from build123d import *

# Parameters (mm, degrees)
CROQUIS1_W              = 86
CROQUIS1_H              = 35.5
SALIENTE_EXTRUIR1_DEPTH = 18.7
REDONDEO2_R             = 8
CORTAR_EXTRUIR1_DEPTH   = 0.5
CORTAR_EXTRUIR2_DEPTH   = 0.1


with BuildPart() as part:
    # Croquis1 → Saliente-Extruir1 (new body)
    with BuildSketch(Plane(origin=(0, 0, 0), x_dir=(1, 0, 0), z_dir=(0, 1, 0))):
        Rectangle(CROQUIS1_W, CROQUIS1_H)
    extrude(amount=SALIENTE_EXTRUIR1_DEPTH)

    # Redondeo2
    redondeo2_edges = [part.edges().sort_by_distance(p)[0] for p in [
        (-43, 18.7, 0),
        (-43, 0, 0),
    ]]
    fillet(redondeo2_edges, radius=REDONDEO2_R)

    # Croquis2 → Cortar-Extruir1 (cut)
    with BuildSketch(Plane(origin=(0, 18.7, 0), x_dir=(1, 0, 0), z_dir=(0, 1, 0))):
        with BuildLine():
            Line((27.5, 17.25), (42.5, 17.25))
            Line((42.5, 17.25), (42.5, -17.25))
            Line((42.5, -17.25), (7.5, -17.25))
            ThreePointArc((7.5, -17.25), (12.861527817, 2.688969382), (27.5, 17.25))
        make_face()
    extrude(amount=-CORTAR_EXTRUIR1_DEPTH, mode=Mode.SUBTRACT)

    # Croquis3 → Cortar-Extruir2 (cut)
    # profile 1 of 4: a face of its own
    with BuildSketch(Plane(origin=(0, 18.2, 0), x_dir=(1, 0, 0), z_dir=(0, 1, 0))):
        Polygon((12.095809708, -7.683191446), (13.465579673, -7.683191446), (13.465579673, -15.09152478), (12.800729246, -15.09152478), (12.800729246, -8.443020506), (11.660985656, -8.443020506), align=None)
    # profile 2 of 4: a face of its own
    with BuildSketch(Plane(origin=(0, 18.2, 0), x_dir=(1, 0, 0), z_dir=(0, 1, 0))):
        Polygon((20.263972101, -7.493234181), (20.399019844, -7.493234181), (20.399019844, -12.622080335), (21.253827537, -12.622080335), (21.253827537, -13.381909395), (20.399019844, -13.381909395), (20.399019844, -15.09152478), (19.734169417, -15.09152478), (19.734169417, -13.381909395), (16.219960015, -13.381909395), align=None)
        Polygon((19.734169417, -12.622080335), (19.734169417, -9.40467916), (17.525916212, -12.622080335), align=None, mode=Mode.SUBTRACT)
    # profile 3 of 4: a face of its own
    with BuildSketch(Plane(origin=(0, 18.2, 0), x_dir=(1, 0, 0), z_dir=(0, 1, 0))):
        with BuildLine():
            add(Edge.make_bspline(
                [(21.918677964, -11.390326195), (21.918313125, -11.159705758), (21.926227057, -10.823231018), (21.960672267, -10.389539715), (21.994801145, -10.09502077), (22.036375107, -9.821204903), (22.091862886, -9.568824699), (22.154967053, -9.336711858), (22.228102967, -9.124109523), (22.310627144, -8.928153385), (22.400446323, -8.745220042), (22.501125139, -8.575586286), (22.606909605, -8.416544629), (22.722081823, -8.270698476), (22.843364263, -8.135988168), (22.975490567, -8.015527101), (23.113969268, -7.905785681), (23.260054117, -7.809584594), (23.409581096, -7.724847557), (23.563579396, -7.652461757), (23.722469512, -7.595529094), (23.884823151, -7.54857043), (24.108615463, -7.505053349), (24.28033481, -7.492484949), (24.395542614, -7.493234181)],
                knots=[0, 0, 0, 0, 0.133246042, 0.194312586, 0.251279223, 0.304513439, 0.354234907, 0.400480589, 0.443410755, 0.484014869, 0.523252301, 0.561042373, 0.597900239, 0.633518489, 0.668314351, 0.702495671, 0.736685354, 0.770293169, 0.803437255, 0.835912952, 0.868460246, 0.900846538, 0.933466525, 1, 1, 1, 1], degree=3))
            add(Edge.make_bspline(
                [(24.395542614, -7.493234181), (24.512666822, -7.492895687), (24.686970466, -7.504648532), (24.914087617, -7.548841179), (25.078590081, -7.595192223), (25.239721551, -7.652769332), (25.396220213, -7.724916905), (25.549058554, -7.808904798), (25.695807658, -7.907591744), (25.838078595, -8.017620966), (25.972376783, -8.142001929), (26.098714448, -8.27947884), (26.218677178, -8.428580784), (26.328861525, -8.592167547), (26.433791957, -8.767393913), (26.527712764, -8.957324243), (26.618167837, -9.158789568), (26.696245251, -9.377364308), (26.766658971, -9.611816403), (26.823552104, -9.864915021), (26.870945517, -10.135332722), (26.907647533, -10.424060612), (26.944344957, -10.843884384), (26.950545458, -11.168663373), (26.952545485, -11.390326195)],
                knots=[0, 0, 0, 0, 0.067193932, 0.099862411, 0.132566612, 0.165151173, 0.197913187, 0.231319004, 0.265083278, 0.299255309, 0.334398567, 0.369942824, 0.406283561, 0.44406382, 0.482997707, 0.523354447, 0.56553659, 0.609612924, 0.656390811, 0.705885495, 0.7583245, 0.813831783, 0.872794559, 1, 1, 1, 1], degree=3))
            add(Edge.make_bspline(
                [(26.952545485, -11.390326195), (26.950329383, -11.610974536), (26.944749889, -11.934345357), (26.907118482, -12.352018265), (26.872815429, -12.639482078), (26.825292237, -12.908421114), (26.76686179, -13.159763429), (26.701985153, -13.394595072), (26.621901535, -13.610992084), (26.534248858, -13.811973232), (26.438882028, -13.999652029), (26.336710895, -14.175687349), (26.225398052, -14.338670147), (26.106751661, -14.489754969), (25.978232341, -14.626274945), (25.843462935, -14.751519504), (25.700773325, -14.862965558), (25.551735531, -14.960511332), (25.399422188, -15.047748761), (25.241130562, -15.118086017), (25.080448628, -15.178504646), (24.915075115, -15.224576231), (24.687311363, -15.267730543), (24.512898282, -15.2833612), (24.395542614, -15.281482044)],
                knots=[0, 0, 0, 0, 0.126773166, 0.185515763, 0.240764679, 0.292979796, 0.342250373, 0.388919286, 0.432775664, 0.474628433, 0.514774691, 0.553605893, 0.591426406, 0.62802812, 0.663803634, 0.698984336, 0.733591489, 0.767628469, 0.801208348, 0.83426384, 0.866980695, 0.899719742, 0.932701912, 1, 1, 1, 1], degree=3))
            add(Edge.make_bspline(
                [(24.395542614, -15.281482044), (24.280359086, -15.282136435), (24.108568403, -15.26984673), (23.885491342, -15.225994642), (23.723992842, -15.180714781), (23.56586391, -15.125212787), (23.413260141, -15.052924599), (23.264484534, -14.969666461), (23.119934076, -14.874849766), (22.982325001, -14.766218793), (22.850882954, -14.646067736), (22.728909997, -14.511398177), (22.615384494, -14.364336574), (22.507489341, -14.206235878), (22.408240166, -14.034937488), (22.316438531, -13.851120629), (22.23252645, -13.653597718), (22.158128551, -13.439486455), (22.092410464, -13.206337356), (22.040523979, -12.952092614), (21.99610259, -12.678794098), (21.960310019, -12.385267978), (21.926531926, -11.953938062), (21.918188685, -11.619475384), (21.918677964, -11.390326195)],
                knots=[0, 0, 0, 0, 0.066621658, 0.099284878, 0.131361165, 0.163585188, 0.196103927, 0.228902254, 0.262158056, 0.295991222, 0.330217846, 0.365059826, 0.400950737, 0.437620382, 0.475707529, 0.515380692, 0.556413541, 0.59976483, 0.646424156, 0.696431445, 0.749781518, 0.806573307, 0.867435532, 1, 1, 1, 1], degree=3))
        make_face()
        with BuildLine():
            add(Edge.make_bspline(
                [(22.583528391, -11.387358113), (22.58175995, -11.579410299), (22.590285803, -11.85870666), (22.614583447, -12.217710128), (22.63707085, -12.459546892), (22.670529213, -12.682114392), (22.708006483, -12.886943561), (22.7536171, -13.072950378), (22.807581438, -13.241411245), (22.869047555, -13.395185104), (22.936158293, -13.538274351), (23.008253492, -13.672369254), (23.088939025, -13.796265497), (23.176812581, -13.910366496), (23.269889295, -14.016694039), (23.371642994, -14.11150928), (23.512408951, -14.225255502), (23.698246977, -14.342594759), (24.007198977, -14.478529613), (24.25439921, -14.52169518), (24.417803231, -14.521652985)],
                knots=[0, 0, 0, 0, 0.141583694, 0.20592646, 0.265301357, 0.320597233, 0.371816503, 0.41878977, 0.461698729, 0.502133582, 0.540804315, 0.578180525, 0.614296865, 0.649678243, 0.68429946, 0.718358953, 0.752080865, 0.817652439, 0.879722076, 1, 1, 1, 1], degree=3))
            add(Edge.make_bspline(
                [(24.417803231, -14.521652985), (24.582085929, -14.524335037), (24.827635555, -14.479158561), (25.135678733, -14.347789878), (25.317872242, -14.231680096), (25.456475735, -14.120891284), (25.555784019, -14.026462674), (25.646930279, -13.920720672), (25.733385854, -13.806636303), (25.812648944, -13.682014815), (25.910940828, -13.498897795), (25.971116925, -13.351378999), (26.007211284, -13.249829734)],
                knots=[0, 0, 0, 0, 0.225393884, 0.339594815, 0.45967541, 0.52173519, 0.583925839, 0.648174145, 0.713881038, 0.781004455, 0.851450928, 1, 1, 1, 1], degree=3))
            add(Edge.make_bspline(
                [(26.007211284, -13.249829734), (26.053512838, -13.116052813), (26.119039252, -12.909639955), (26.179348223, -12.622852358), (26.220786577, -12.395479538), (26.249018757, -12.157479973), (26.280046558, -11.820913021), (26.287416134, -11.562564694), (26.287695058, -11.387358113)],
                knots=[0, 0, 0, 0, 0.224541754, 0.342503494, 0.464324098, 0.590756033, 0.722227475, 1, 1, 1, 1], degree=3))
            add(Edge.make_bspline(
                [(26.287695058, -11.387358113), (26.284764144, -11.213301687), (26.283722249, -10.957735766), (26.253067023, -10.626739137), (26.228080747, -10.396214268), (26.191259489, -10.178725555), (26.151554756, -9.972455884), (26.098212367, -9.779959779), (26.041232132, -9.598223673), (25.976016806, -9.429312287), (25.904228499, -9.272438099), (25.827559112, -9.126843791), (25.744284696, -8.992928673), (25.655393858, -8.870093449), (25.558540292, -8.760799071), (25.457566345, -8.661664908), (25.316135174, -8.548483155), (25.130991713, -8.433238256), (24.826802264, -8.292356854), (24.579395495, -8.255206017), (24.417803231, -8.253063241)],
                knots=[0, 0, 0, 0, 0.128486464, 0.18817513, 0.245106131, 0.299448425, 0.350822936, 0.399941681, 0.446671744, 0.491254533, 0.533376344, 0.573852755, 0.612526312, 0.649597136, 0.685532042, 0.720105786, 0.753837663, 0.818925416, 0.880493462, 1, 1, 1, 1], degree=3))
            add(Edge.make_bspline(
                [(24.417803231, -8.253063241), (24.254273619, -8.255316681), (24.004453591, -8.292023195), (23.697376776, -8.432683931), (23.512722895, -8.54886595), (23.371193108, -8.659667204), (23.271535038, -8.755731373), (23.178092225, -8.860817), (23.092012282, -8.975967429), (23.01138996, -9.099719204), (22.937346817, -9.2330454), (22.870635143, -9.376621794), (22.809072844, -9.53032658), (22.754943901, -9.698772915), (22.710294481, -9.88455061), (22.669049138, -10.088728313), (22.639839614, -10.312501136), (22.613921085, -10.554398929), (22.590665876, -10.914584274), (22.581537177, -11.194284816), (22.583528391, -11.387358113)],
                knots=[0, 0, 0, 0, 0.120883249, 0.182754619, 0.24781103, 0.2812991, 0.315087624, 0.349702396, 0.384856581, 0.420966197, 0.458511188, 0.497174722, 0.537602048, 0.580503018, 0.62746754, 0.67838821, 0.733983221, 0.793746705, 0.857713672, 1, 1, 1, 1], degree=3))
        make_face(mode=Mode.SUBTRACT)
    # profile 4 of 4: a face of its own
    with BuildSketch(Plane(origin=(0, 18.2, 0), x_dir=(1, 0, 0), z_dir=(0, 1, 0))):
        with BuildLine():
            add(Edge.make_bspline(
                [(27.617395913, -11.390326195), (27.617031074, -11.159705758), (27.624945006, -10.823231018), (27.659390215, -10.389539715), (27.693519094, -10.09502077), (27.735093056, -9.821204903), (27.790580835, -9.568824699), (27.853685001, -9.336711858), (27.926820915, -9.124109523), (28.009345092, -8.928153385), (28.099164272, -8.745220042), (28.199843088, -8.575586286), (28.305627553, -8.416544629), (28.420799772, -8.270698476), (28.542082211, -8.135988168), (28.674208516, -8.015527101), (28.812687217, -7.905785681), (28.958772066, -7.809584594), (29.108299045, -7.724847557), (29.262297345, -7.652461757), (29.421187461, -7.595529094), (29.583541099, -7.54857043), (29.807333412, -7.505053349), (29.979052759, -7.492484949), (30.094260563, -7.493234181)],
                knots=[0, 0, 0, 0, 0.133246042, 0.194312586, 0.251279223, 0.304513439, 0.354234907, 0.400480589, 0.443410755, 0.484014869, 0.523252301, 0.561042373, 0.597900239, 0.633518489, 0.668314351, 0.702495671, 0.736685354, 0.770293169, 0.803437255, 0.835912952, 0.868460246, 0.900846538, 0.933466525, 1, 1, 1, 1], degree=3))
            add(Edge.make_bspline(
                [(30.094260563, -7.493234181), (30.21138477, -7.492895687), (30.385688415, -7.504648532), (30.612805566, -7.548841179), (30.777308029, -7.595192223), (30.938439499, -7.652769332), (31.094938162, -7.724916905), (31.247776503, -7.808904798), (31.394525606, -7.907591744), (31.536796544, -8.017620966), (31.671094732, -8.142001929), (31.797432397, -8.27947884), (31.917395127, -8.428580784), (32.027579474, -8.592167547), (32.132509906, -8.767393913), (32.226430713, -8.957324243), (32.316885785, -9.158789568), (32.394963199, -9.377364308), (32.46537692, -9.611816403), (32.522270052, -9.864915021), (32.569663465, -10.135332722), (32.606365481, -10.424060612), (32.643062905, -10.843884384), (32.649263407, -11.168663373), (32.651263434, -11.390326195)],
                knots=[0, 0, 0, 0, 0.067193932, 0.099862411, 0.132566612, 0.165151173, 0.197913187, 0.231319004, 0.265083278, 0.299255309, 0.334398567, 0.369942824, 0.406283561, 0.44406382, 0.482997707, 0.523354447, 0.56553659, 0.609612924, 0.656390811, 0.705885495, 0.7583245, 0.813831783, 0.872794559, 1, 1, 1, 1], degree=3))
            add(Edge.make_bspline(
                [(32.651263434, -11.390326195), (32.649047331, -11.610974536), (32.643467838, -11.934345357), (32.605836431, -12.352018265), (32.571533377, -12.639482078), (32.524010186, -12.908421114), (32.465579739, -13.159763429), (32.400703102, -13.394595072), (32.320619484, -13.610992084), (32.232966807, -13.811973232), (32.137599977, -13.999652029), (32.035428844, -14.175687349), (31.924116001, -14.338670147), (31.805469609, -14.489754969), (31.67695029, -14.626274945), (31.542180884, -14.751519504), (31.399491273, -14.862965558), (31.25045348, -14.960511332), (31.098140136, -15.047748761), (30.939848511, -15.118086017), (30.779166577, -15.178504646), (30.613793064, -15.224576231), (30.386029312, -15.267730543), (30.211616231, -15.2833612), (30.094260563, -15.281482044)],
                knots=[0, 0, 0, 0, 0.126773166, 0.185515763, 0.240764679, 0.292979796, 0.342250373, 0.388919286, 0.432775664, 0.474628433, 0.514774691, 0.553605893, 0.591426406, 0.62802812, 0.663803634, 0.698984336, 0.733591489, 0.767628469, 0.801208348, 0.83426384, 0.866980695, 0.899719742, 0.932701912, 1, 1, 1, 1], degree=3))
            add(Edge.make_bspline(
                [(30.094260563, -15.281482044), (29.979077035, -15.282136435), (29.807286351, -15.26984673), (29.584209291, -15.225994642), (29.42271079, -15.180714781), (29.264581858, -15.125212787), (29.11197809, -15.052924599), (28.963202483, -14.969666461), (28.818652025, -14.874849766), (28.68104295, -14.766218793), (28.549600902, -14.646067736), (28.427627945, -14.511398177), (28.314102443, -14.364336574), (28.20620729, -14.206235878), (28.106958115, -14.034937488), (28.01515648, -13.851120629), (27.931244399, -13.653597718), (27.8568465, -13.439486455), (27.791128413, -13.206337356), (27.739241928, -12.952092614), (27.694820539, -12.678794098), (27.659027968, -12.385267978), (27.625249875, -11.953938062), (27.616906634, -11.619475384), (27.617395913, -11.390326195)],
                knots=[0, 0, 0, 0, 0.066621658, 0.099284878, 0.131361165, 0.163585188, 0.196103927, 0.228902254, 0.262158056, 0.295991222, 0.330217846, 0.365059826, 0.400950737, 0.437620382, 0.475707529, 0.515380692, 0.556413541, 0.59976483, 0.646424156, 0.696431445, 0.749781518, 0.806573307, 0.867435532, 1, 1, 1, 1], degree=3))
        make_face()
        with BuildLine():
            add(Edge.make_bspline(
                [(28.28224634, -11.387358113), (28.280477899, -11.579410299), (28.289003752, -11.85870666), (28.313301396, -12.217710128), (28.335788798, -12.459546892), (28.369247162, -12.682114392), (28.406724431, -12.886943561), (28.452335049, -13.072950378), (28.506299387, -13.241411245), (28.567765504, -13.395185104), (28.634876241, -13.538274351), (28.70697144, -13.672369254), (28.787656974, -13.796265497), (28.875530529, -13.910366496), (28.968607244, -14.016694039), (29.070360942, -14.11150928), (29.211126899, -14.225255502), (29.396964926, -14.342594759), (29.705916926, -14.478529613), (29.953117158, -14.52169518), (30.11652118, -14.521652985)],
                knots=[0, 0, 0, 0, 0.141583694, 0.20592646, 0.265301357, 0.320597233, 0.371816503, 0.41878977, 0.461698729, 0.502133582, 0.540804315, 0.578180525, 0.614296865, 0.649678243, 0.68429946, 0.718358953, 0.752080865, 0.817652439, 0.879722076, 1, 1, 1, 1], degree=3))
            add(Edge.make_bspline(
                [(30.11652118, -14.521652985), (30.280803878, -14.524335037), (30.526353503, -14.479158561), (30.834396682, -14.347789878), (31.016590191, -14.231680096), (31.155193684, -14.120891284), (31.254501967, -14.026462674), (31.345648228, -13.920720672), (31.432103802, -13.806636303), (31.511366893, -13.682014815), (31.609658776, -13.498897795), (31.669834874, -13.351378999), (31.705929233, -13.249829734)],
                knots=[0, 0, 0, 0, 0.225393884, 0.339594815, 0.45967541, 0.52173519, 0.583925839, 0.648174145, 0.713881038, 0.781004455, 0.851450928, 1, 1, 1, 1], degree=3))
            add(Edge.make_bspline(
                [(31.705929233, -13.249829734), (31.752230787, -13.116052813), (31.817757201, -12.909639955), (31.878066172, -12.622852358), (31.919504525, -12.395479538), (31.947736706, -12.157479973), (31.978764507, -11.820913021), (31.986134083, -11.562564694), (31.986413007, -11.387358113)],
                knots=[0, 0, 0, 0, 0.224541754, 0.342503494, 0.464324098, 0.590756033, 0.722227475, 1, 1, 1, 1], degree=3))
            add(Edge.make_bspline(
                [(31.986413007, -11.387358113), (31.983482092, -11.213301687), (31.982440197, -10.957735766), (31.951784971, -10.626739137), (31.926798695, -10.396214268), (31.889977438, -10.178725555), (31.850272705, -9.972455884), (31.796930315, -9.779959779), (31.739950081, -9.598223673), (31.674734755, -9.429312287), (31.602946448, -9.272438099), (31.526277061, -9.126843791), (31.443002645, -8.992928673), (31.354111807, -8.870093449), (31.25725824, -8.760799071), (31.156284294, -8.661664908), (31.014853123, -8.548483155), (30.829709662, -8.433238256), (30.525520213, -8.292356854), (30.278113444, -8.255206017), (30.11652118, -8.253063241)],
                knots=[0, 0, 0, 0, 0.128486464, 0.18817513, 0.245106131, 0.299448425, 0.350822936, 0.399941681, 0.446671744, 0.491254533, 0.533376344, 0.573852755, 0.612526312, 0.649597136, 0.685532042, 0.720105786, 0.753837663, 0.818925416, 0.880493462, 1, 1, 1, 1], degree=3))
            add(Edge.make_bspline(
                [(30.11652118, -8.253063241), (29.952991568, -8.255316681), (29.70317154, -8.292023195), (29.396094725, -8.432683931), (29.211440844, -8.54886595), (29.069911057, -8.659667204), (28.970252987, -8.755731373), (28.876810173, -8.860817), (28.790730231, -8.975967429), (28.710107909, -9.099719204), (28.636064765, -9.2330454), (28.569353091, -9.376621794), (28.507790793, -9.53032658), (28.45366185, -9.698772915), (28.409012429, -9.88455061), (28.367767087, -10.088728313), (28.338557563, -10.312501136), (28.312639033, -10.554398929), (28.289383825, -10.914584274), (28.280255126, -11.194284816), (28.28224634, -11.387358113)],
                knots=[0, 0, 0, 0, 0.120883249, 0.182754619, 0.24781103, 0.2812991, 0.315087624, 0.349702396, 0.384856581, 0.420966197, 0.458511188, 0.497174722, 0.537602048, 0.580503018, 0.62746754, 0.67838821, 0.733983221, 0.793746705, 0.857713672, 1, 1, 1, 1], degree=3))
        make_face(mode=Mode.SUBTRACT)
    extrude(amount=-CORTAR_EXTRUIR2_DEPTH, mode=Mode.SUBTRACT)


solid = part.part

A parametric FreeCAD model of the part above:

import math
import FreeCAD as App
import Part
import Sketcher

V = App.Vector
Q = App.Units.Quantity


def edges_at(feature, points):
    """Names of the edges that pass closest to the given points."""
    edges = feature.Shape.Edges
    near = lambda p: min(range(len(edges)), key=lambda i: edges[i].distToShape(Part.Vertex(*p))[0])
    return sorted({f"Edge{near(p) + 1}" for p in points})


def add_polygon(sketch, points):
    """Adds a closed chain of lines whose ends are joined by coincident constraints."""
    first, n = sketch.GeometryCount, len(points)
    for a, b in zip(points, points[1:] + points[:1]):
        sketch.addGeometry(Part.LineSegment(App.Vector(*a, 0), App.Vector(*b, 0)), False)
    for i in range(n):
        sketch.addConstraint(Sketcher.Constraint("Coincident", first + i, 2, first + (i + 1) % n, 1))

doc = App.newDocument("Part")
body = doc.addObject("PartDesign::Body", "Body")

# Sketch on XZ plane
sketch1 = doc.addObject("Sketcher::SketchObject", "Sketch")
body.addObject(sketch1)
sketch1.AttachmentSupport = (doc.XZ_Plane, [""])
sketch1.MapMode = "FlatFace"
add_polygon(sketch1, [(-43, -18), (-43, 18), (43, 18), (43, -18)])  # lines 0-3
sketch1.addConstraint(Sketcher.Constraint("Vertical", 0))
sketch1.addConstraint(Sketcher.Constraint("Horizontal", 1))
sketch1.addConstraint(Sketcher.Constraint("Vertical", 2))
sketch1.addConstraint(Sketcher.Constraint("Horizontal", 3))
sketch1.addConstraint(Sketcher.Constraint("Symmetric", 0, 2, 2, 2, -1, 1))
sketch1.addConstraint(Sketcher.Constraint("DistanceX", 1, 1, 1, 2, Q("86 mm")))
sketch1.addConstraint(Sketcher.Constraint("DistanceY", 0, 1, 0, 2, Q("35.5 mm")))
pad1 = doc.addObject("PartDesign::Pad", "Pad")
body.addObject(pad1)
pad1.Profile = sketch1
pad1.Length = 18.7
pad1.Reversed = True
doc.recompute()

fillet = doc.addObject("PartDesign::Fillet", "Fillet")
body.addObject(fillet)
fillet.Base = (pad1, edges_at(pad1, [(-43, 18.7, 0), (-43, 0, 0)]))
fillet.Radius = 8

# Sketch on XZ plane
sketch2 = doc.addObject("Sketcher::SketchObject", "Sketch001")
body.addObject(sketch2)
sketch2.AttachmentSupport = (doc.XZ_Plane, [""])
sketch2.MapMode = "FlatFace"
sketch2.AttachmentOffset = App.Placement(V(0, 0, -18.7), App.Rotation())
sketch2.addGeometry(Part.LineSegment(V(42, -17, 0), V(28, -17, 0)), False)
sketch2.addGeometry(Part.ArcOfCircle(Part.Circle(V(47, 17, 0), V(0, 0, 1), 40), math.radians(180), math.radians(240)), False)
sketch2.addGeometry(Part.LineSegment(V(8, 17, 0), V(42, 17, 0)), False)
sketch2.addGeometry(Part.LineSegment(V(42, 17, 0), V(42, -17, 0)), False)
sketch2.addConstraint(Sketcher.Constraint("Coincident", 0, 2, 1, 2))
sketch2.addConstraint(Sketcher.Constraint("Coincident", 1, 1, 2, 1))
sketch2.addConstraint(Sketcher.Constraint("Coincident", 2, 2, 3, 1))
sketch2.addConstraint(Sketcher.Constraint("Coincident", 3, 2, 0, 1))
sketch2.addConstraint(Sketcher.Constraint("Horizontal", 0))
sketch2.addConstraint(Sketcher.Constraint("Horizontal", 2))
sketch2.addConstraint(Sketcher.Constraint("Vertical", 3))
sketch2.addConstraint(Sketcher.Constraint("DistanceX", 0, 2, 0, 1, Q("15 mm")))
sketch2.addConstraint(Sketcher.Constraint("DistanceX", 2, 1, 2, 2, Q("35 mm")))
sketch2.addConstraint(Sketcher.Constraint("DistanceY", 3, 2, 3, 1, Q("34.5 mm")))
sketch2.addConstraint(Sketcher.Constraint("DistanceX", -1, 1, 0, 2, Q("27.5 mm")))
sketch2.addConstraint(Sketcher.Constraint("DistanceY", 0, 2, 1, 3, Q("34.5 mm")))
sketch2.addConstraint(Sketcher.Constraint("DistanceY", -1, 1, 1, 3, Q("17.25 mm")))
pocket1 = doc.addObject("PartDesign::Pocket", "Pocket")
body.addObject(pocket1)
pocket1.Profile = sketch2
pocket1.Length = 0.5
pocket1.Reversed = True

# Sketch on XZ plane
sketch3 = doc.addObject("Sketcher::SketchObject", "Sketch002")
body.addObject(sketch3)
sketch3.AttachmentSupport = (doc.XZ_Plane, [""])
sketch3.MapMode = "FlatFace"
sketch3.AttachmentOffset = App.Placement(V(0, 0, -18.2), App.Rotation())
add_polygon(sketch3, [(13.46558, 7.683191), (12.09581, 7.683191), (11.660986, 8.443021), (12.800729, 8.443021), (12.800729, 15.091525), (13.46558, 15.091525)])  # lines 0-5
add_polygon(sketch3, [(20.39902, 7.493234), (20.263972, 7.493234), (16.21996, 13.381909), (19.734169, 13.381909), (19.734169, 15.091525), (20.39902, 15.091525), (20.39902, 13.381909), (21.253828, 13.381909), (21.253828, 12.62208), (20.39902, 12.62208)])  # lines 6-15
add_polygon(sketch3, [(19.734169, 12.62208), (17.525916, 12.62208), (19.734169, 9.404679)])  # lines 16-18
sketch3.addGeometry(Part.BSplineCurve([V(21.918678, 11.390326, 0), V(21.918313, 11.159706, 0), V(21.926227, 10.823231, 0), V(21.960672, 10.38954, 0), V(21.994801, 10.095021, 0), V(22.036375, 9.821205, 0), V(22.091863, 9.568825, 0), V(22.154967, 9.336712, 0), V(22.228103, 9.12411, 0), V(22.310627, 8.928153, 0), V(22.400446, 8.74522, 0), V(22.501125, 8.575586, 0), V(22.60691, 8.416545, 0), V(22.722082, 8.270698, 0), V(22.843364, 8.135988, 0), V(22.975491, 8.015527, 0), V(23.113969, 7.905786, 0), V(23.260054, 7.809585, 0), V(23.409581, 7.724848, 0), V(23.563579, 7.652462, 0), V(23.72247, 7.595529, 0), V(23.884823, 7.54857, 0), V(24.108615, 7.505053, 0), V(24.280335, 7.492485, 0), V(24.395543, 7.493234, 0)], [4, 1, 1, 1, 1, 1, 1, 1, 1, 1, 1, 1, 1, 1, 1, 1, 1, 1, 1, 1, 1, 1, 4], [0, 0.133246042, 0.194312586, 0.251279223, 0.304513439, 0.354234907, 0.400480589, 0.443410755, 0.484014869, 0.523252301, 0.561042373, 0.597900239, 0.633518489, 0.668314351, 0.702495671, 0.736685354, 0.770293169, 0.803437255, 0.835912952, 0.868460246, 0.900846538, 0.933466525, 1], False, 3, [1, 1, 1, 1, 1, 1, 1, 1, 1, 1, 1, 1, 1, 1, 1, 1, 1, 1, 1, 1, 1, 1, 1, 1, 1], False), False)  # 19
sketch3.addGeometry(Part.BSplineCurve([V(24.395543, 15.281482, 0), V(24.280359, 15.282136, 0), V(24.108568, 15.269847, 0), V(23.885491, 15.225995, 0), V(23.723993, 15.180715, 0), V(23.565864, 15.125213, 0), V(23.41326, 15.052925, 0), V(23.264485, 14.969666, 0), V(23.119934, 14.87485, 0), V(22.982325, 14.766219, 0), V(22.850883, 14.646068, 0), V(22.72891, 14.511398, 0), V(22.615384, 14.364337, 0), V(22.507489, 14.206236, 0), V(22.40824, 14.034937, 0), V(22.316439, 13.851121, 0), V(22.232526, 13.653598, 0), V(22.158129, 13.439486, 0), V(22.09241, 13.206337, 0), V(22.040524, 12.952093, 0), V(21.996103, 12.678794, 0), V(21.96031, 12.385268, 0), V(21.926532, 11.953938, 0), V(21.918189, 11.619475, 0), V(21.918678, 11.390326, 0)], [4, 1, 1, 1, 1, 1, 1, 1, 1, 1, 1, 1, 1, 1, 1, 1, 1, 1, 1, 1, 1, 1, 4], [0, 0.066621658, 0.099284878, 0.131361165, 0.163585188, 0.196103927, 0.228902254, 0.262158056, 0.295991222, 0.330217846, 0.365059826, 0.400950737, 0.437620382, 0.475707529, 0.515380692, 0.556413541, 0.59976483, 0.646424156, 0.696431445, 0.749781518, 0.806573307, 0.867435532, 1], False, 3, [1, 1, 1, 1, 1, 1, 1, 1, 1, 1, 1, 1, 1, 1, 1, 1, 1, 1, 1, 1, 1, 1, 1, 1, 1], False), False)  # 20
sketch3.addGeometry(Part.BSplineCurve([V(26.952545, 11.390326, 0), V(26.950329, 11.610975, 0), V(26.94475, 11.934345, 0), V(26.907118, 12.352018, 0), V(26.872815, 12.639482, 0), V(26.825292, 12.908421, 0), V(26.766862, 13.159763, 0), V(26.701985, 13.394595, 0), V(26.621902, 13.610992, 0), V(26.534249, 13.811973, 0), V(26.438882, 13.999652, 0), V(26.336711, 14.175687, 0), V(26.225398, 14.33867, 0), V(26.106752, 14.489755, 0), V(25.978232, 14.626275, 0), V(25.843463, 14.75152, 0), V(25.700773, 14.862966, 0), V(25.551736, 14.960511, 0), V(25.399422, 15.047749, 0), V(25.241131, 15.118086, 0), V(25.080449, 15.178505, 0), V(24.915075, 15.224576, 0), V(24.687311, 15.267731, 0), V(24.512898, 15.283361, 0), V(24.395543, 15.281482, 0)], [4, 1, 1, 1, 1, 1, 1, 1, 1, 1, 1, 1, 1, 1, 1, 1, 1, 1, 1, 1, 1, 1, 4], [0, 0.126773166, 0.185515763, 0.240764679, 0.292979796, 0.342250373, 0.388919286, 0.432775664, 0.474628433, 0.514774691, 0.553605893, 0.591426406, 0.62802812, 0.663803634, 0.698984336, 0.733591489, 0.767628469, 0.801208348, 0.83426384, 0.866980695, 0.899719742, 0.932701912, 1], False, 3, [1, 1, 1, 1, 1, 1, 1, 1, 1, 1, 1, 1, 1, 1, 1, 1, 1, 1, 1, 1, 1, 1, 1, 1, 1], False), False)  # 21
sketch3.addGeometry(Part.BSplineCurve([V(24.395543, 7.493234, 0), V(24.512667, 7.492896, 0), V(24.68697, 7.504649, 0), V(24.914088, 7.548841, 0), V(25.07859, 7.595192, 0), V(25.239722, 7.652769, 0), V(25.39622, 7.724917, 0), V(25.549059, 7.808905, 0), V(25.695808, 7.907592, 0), V(25.838079, 8.017621, 0), V(25.972377, 8.142002, 0), V(26.098714, 8.279479, 0), V(26.218677, 8.428581, 0), V(26.328862, 8.592168, 0), V(26.433792, 8.767394, 0), V(26.527713, 8.957324, 0), V(26.618168, 9.15879, 0), V(26.696245, 9.377364, 0), V(26.766659, 9.611816, 0), V(26.823552, 9.864915, 0), V(26.870946, 10.135333, 0), V(26.907648, 10.424061, 0), V(26.944345, 10.843884, 0), V(26.950545, 11.168663, 0), V(26.952545, 11.390326, 0)], [4, 1, 1, 1, 1, 1, 1, 1, 1, 1, 1, 1, 1, 1, 1, 1, 1, 1, 1, 1, 1, 1, 4], [0, 0.067193932, 0.099862411, 0.132566612, 0.165151173, 0.197913187, 0.231319004, 0.265083278, 0.299255309, 0.334398567, 0.369942824, 0.406283561, 0.44406382, 0.482997707, 0.523354447, 0.56553659, 0.609612924, 0.656390811, 0.705885495, 0.7583245, 0.813831783, 0.872794559, 1], False, 3, [1, 1, 1, 1, 1, 1, 1, 1, 1, 1, 1, 1, 1, 1, 1, 1, 1, 1, 1, 1, 1, 1, 1, 1, 1], False), False)  # 22
sketch3.addGeometry(Part.BSplineCurve([V(24.417803, 8.253063, 0), V(24.254274, 8.255317, 0), V(24.004454, 8.292023, 0), V(23.697377, 8.432684, 0), V(23.512723, 8.548866, 0), V(23.371193, 8.659667, 0), V(23.271535, 8.755731, 0), V(23.178092, 8.860817, 0), V(23.092012, 8.975967, 0), V(23.01139, 9.099719, 0), V(22.937347, 9.233045, 0), V(22.870635, 9.376622, 0), V(22.809073, 9.530327, 0), V(22.754944, 9.698773, 0), V(22.710294, 9.884551, 0), V(22.669049, 10.088728, 0), V(22.63984, 10.312501, 0), V(22.613921, 10.554399, 0), V(22.590666, 10.914584, 0), V(22.581537, 11.194285, 0), V(22.583528, 11.387358, 0)], [4, 1, 1, 1, 1, 1, 1, 1, 1, 1, 1, 1, 1, 1, 1, 1, 1, 1, 4], [0, 0.120883249, 0.182754619, 0.24781103, 0.2812991, 0.315087624, 0.349702396, 0.384856581, 0.420966197, 0.458511188, 0.497174722, 0.537602048, 0.580503018, 0.62746754, 0.67838821, 0.733983221, 0.793746705, 0.857713672, 1], False, 3, [1, 1, 1, 1, 1, 1, 1, 1, 1, 1, 1, 1, 1, 1, 1, 1, 1, 1, 1, 1, 1], False), False)  # 23
sketch3.addGeometry(Part.BSplineCurve([V(26.287695, 11.387358, 0), V(26.284764, 11.213302, 0), V(26.283722, 10.957736, 0), V(26.253067, 10.626739, 0), V(26.228081, 10.396214, 0), V(26.191259, 10.178726, 0), V(26.151555, 9.972456, 0), V(26.098212, 9.77996, 0), V(26.041232, 9.598224, 0), V(25.976017, 9.429312, 0), V(25.904228, 9.272438, 0), V(25.827559, 9.126844, 0), V(25.744285, 8.992929, 0), V(25.655394, 8.870093, 0), V(25.55854, 8.760799, 0), V(25.457566, 8.661665, 0), V(25.316135, 8.548483, 0), V(25.130992, 8.433238, 0), V(24.826802, 8.292357, 0), V(24.579395, 8.255206, 0), V(24.417803, 8.253063, 0)], [4, 1, 1, 1, 1, 1, 1, 1, 1, 1, 1, 1, 1, 1, 1, 1, 1, 1, 4], [0, 0.128486464, 0.18817513, 0.245106131, 0.299448425, 0.350822936, 0.399941681, 0.446671744, 0.491254533, 0.533376344, 0.573852755, 0.612526312, 0.649597136, 0.685532042, 0.720105786, 0.753837663, 0.818925416, 0.880493462, 1], False, 3, [1, 1, 1, 1, 1, 1, 1, 1, 1, 1, 1, 1, 1, 1, 1, 1, 1, 1, 1, 1, 1], False), False)  # 24
sketch3.addGeometry(Part.BSplineCurve([V(26.007211, 13.24983, 0), V(26.053513, 13.116053, 0), V(26.119039, 12.90964, 0), V(26.179348, 12.622852, 0), V(26.220787, 12.39548, 0), V(26.249019, 12.15748, 0), V(26.280047, 11.820913, 0), V(26.287416, 11.562565, 0), V(26.287695, 11.387358, 0)], [4, 1, 1, 1, 1, 1, 4], [0, 0.224541754, 0.342503494, 0.464324098, 0.590756033, 0.722227475, 1], False, 3, [1, 1, 1, 1, 1, 1, 1, 1, 1], False), False)  # 25
sketch3.addGeometry(Part.BSplineCurve([V(24.417803, 14.521653, 0), V(24.582086, 14.524335, 0), V(24.827636, 14.479159, 0), V(25.135679, 14.34779, 0), V(25.317872, 14.23168, 0), V(25.456476, 14.120891, 0), V(25.555784, 14.026463, 0), V(25.64693, 13.920721, 0), V(25.733386, 13.806636, 0), V(25.812649, 13.682015, 0), V(25.910941, 13.498898, 0), V(25.971117, 13.351379, 0), V(26.007211, 13.24983, 0)], [4, 1, 1, 1, 1, 1, 1, 1, 1, 1, 4], [0, 0.225393884, 0.339594815, 0.45967541, 0.52173519, 0.583925839, 0.648174145, 0.713881038, 0.781004455, 0.851450928, 1], False, 3, [1, 1, 1, 1, 1, 1, 1, 1, 1, 1, 1, 1, 1], False), False)  # 26
sketch3.addGeometry(Part.BSplineCurve([V(22.583528, 11.387358, 0), V(22.58176, 11.57941, 0), V(22.590286, 11.858707, 0), V(22.614583, 12.21771, 0), V(22.637071, 12.459547, 0), V(22.670529, 12.682114, 0), V(22.708006, 12.886944, 0), V(22.753617, 13.07295, 0), V(22.807581, 13.241411, 0), V(22.869048, 13.395185, 0), V(22.936158, 13.538274, 0), V(23.008253, 13.672369, 0), V(23.088939, 13.796265, 0), V(23.176813, 13.910366, 0), V(23.269889, 14.016694, 0), V(23.371643, 14.111509, 0), V(23.512409, 14.225256, 0), V(23.698247, 14.342595, 0), V(24.007199, 14.47853, 0), V(24.254399, 14.521695, 0), V(24.417803, 14.521653, 0)], [4, 1, 1, 1, 1, 1, 1, 1, 1, 1, 1, 1, 1, 1, 1, 1, 1, 1, 4], [0, 0.141583694, 0.20592646, 0.265301357, 0.320597233, 0.371816503, 0.41878977, 0.461698729, 0.502133582, 0.540804315, 0.578180525, 0.614296865, 0.649678243, 0.68429946, 0.718358953, 0.752080865, 0.817652439, 0.879722076, 1], False, 3, [1, 1, 1, 1, 1, 1, 1, 1, 1, 1, 1, 1, 1, 1, 1, 1, 1, 1, 1, 1, 1], False), False)  # 27
sketch3.addGeometry(Part.BSplineCurve([V(27.617396, 11.390326, 0), V(27.617031, 11.159706, 0), V(27.624945, 10.823231, 0), V(27.65939, 10.38954, 0), V(27.693519, 10.095021, 0), V(27.735093, 9.821205, 0), V(27.790581, 9.568825, 0), V(27.853685, 9.336712, 0), V(27.926821, 9.12411, 0), V(28.009345, 8.928153, 0), V(28.099164, 8.74522, 0), V(28.199843, 8.575586, 0), V(28.305628, 8.416545, 0), V(28.4208, 8.270698, 0), V(28.542082, 8.135988, 0), V(28.674209, 8.015527, 0), V(28.812687, 7.905786, 0), V(28.958772, 7.809585, 0), V(29.108299, 7.724848, 0), V(29.262297, 7.652462, 0), V(29.421187, 7.595529, 0), V(29.583541, 7.54857, 0), V(29.807333, 7.505053, 0), V(29.979053, 7.492485, 0), V(30.094261, 7.493234, 0)], [4, 1, 1, 1, 1, 1, 1, 1, 1, 1, 1, 1, 1, 1, 1, 1, 1, 1, 1, 1, 1, 1, 4], [0, 0.133246042, 0.194312586, 0.251279223, 0.304513439, 0.354234907, 0.400480589, 0.443410755, 0.484014869, 0.523252301, 0.561042373, 0.597900239, 0.633518489, 0.668314351, 0.702495671, 0.736685354, 0.770293169, 0.803437255, 0.835912952, 0.868460246, 0.900846538, 0.933466525, 1], False, 3, [1, 1, 1, 1, 1, 1, 1, 1, 1, 1, 1, 1, 1, 1, 1, 1, 1, 1, 1, 1, 1, 1, 1, 1, 1], False), False)  # 28
sketch3.addGeometry(Part.BSplineCurve([V(30.094261, 15.281482, 0), V(29.979077, 15.282136, 0), V(29.807286, 15.269847, 0), V(29.584209, 15.225995, 0), V(29.422711, 15.180715, 0), V(29.264582, 15.125213, 0), V(29.111978, 15.052925, 0), V(28.963202, 14.969666, 0), V(28.818652, 14.87485, 0), V(28.681043, 14.766219, 0), V(28.549601, 14.646068, 0), V(28.427628, 14.511398, 0), V(28.314102, 14.364337, 0), V(28.206207, 14.206236, 0), V(28.106958, 14.034937, 0), V(28.015156, 13.851121, 0), V(27.931244, 13.653598, 0), V(27.856846, 13.439486, 0), V(27.791128, 13.206337, 0), V(27.739242, 12.952093, 0), V(27.694821, 12.678794, 0), V(27.659028, 12.385268, 0), V(27.62525, 11.953938, 0), V(27.616907, 11.619475, 0), V(27.617396, 11.390326, 0)], [4, 1, 1, 1, 1, 1, 1, 1, 1, 1, 1, 1, 1, 1, 1, 1, 1, 1, 1, 1, 1, 1, 4], [0, 0.066621658, 0.099284878, 0.131361165, 0.163585188, 0.196103927, 0.228902254, 0.262158056, 0.295991222, 0.330217846, 0.365059826, 0.400950737, 0.437620382, 0.475707529, 0.515380692, 0.556413541, 0.59976483, 0.646424156, 0.696431445, 0.749781518, 0.806573307, 0.867435532, 1], False, 3, [1, 1, 1, 1, 1, 1, 1, 1, 1, 1, 1, 1, 1, 1, 1, 1, 1, 1, 1, 1, 1, 1, 1, 1, 1], False), False)  # 29
sketch3.addGeometry(Part.BSplineCurve([V(32.651263, 11.390326, 0), V(32.649047, 11.610975, 0), V(32.643468, 11.934345, 0), V(32.605836, 12.352018, 0), V(32.571533, 12.639482, 0), V(32.52401, 12.908421, 0), V(32.46558, 13.159763, 0), V(32.400703, 13.394595, 0), V(32.320619, 13.610992, 0), V(32.232967, 13.811973, 0), V(32.1376, 13.999652, 0), V(32.035429, 14.175687, 0), V(31.924116, 14.33867, 0), V(31.80547, 14.489755, 0), V(31.67695, 14.626275, 0), V(31.542181, 14.75152, 0), V(31.399491, 14.862966, 0), V(31.250453, 14.960511, 0), V(31.09814, 15.047749, 0), V(30.939849, 15.118086, 0), V(30.779167, 15.178505, 0), V(30.613793, 15.224576, 0), V(30.386029, 15.267731, 0), V(30.211616, 15.283361, 0), V(30.094261, 15.281482, 0)], [4, 1, 1, 1, 1, 1, 1, 1, 1, 1, 1, 1, 1, 1, 1, 1, 1, 1, 1, 1, 1, 1, 4], [0, 0.126773166, 0.185515763, 0.240764679, 0.292979796, 0.342250373, 0.388919286, 0.432775664, 0.474628433, 0.514774691, 0.553605893, 0.591426406, 0.62802812, 0.663803634, 0.698984336, 0.733591489, 0.767628469, 0.801208348, 0.83426384, 0.866980695, 0.899719742, 0.932701912, 1], False, 3, [1, 1, 1, 1, 1, 1, 1, 1, 1, 1, 1, 1, 1, 1, 1, 1, 1, 1, 1, 1, 1, 1, 1, 1, 1], False), False)  # 30
sketch3.addGeometry(Part.BSplineCurve([V(30.094261, 7.493234, 0), V(30.211385, 7.492896, 0), V(30.385688, 7.504649, 0), V(30.612806, 7.548841, 0), V(30.777308, 7.595192, 0), V(30.938439, 7.652769, 0), V(31.094938, 7.724917, 0), V(31.247777, 7.808905, 0), V(31.394526, 7.907592, 0), V(31.536797, 8.017621, 0), V(31.671095, 8.142002, 0), V(31.797432, 8.279479, 0), V(31.917395, 8.428581, 0), V(32.027579, 8.592168, 0), V(32.13251, 8.767394, 0), V(32.226431, 8.957324, 0), V(32.316886, 9.15879, 0), V(32.394963, 9.377364, 0), V(32.465377, 9.611816, 0), V(32.52227, 9.864915, 0), V(32.569663, 10.135333, 0), V(32.606365, 10.424061, 0), V(32.643063, 10.843884, 0), V(32.649263, 11.168663, 0), V(32.651263, 11.390326, 0)], [4, 1, 1, 1, 1, 1, 1, 1, 1, 1, 1, 1, 1, 1, 1, 1, 1, 1, 1, 1, 1, 1, 4], [0, 0.067193932, 0.099862411, 0.132566612, 0.165151173, 0.197913187, 0.231319004, 0.265083278, 0.299255309, 0.334398567, 0.369942824, 0.406283561, 0.44406382, 0.482997707, 0.523354447, 0.56553659, 0.609612924, 0.656390811, 0.705885495, 0.7583245, 0.813831783, 0.872794559, 1], False, 3, [1, 1, 1, 1, 1, 1, 1, 1, 1, 1, 1, 1, 1, 1, 1, 1, 1, 1, 1, 1, 1, 1, 1, 1, 1], False), False)  # 31
sketch3.addGeometry(Part.BSplineCurve([V(30.116521, 8.253063, 0), V(29.952992, 8.255317, 0), V(29.703172, 8.292023, 0), V(29.396095, 8.432684, 0), V(29.211441, 8.548866, 0), V(29.069911, 8.659667, 0), V(28.970253, 8.755731, 0), V(28.87681, 8.860817, 0), V(28.79073, 8.975967, 0), V(28.710108, 9.099719, 0), V(28.636065, 9.233045, 0), V(28.569353, 9.376622, 0), V(28.507791, 9.530327, 0), V(28.453662, 9.698773, 0), V(28.409012, 9.884551, 0), V(28.367767, 10.088728, 0), V(28.338558, 10.312501, 0), V(28.312639, 10.554399, 0), V(28.289384, 10.914584, 0), V(28.280255, 11.194285, 0), V(28.282246, 11.387358, 0)], [4, 1, 1, 1, 1, 1, 1, 1, 1, 1, 1, 1, 1, 1, 1, 1, 1, 1, 4], [0, 0.120883249, 0.182754619, 0.24781103, 0.2812991, 0.315087624, 0.349702396, 0.384856581, 0.420966197, 0.458511188, 0.497174722, 0.537602048, 0.580503018, 0.62746754, 0.67838821, 0.733983221, 0.793746705, 0.857713672, 1], False, 3, [1, 1, 1, 1, 1, 1, 1, 1, 1, 1, 1, 1, 1, 1, 1, 1, 1, 1, 1, 1, 1], False), False)  # 32
sketch3.addGeometry(Part.BSplineCurve([V(31.986413, 11.387358, 0), V(31.983482, 11.213302, 0), V(31.98244, 10.957736, 0), V(31.951785, 10.626739, 0), V(31.926799, 10.396214, 0), V(31.889977, 10.178726, 0), V(31.850273, 9.972456, 0), V(31.79693, 9.77996, 0), V(31.73995, 9.598224, 0), V(31.674735, 9.429312, 0), V(31.602946, 9.272438, 0), V(31.526277, 9.126844, 0), V(31.443003, 8.992929, 0), V(31.354112, 8.870093, 0), V(31.257258, 8.760799, 0), V(31.156284, 8.661665, 0), V(31.014853, 8.548483, 0), V(30.82971, 8.433238, 0), V(30.52552, 8.292357, 0), V(30.278113, 8.255206, 0), V(30.116521, 8.253063, 0)], [4, 1, 1, 1, 1, 1, 1, 1, 1, 1, 1, 1, 1, 1, 1, 1, 1, 1, 4], [0, 0.128486464, 0.18817513, 0.245106131, 0.299448425, 0.350822936, 0.399941681, 0.446671744, 0.491254533, 0.533376344, 0.573852755, 0.612526312, 0.649597136, 0.685532042, 0.720105786, 0.753837663, 0.818925416, 0.880493462, 1], False, 3, [1, 1, 1, 1, 1, 1, 1, 1, 1, 1, 1, 1, 1, 1, 1, 1, 1, 1, 1, 1, 1], False), False)  # 33
sketch3.addGeometry(Part.BSplineCurve([V(31.705929, 13.24983, 0), V(31.752231, 13.116053, 0), V(31.817757, 12.90964, 0), V(31.878066, 12.622852, 0), V(31.919505, 12.39548, 0), V(31.947737, 12.15748, 0), V(31.978765, 11.820913, 0), V(31.986134, 11.562565, 0), V(31.986413, 11.387358, 0)], [4, 1, 1, 1, 1, 1, 4], [0, 0.224541754, 0.342503494, 0.464324098, 0.590756033, 0.722227475, 1], False, 3, [1, 1, 1, 1, 1, 1, 1, 1, 1], False), False)  # 34
sketch3.addGeometry(Part.BSplineCurve([V(30.116521, 14.521653, 0), V(30.280804, 14.524335, 0), V(30.526354, 14.479159, 0), V(30.834397, 14.34779, 0), V(31.01659, 14.23168, 0), V(31.155194, 14.120891, 0), V(31.254502, 14.026463, 0), V(31.345648, 13.920721, 0), V(31.432104, 13.806636, 0), V(31.511367, 13.682015, 0), V(31.609659, 13.498898, 0), V(31.669835, 13.351379, 0), V(31.705929, 13.24983, 0)], [4, 1, 1, 1, 1, 1, 1, 1, 1, 1, 4], [0, 0.225393884, 0.339594815, 0.45967541, 0.52173519, 0.583925839, 0.648174145, 0.713881038, 0.781004455, 0.851450928, 1], False, 3, [1, 1, 1, 1, 1, 1, 1, 1, 1, 1, 1, 1, 1], False), False)  # 35
sketch3.addGeometry(Part.BSplineCurve([V(28.282246, 11.387358, 0), V(28.280478, 11.57941, 0), V(28.289004, 11.858707, 0), V(28.313301, 12.21771, 0), V(28.335789, 12.459547, 0), V(28.369247, 12.682114, 0), V(28.406724, 12.886944, 0), V(28.452335, 13.07295, 0), V(28.506299, 13.241411, 0), V(28.567766, 13.395185, 0), V(28.634876, 13.538274, 0), V(28.706971, 13.672369, 0), V(28.787657, 13.796265, 0), V(28.875531, 13.910366, 0), V(28.968607, 14.016694, 0), V(29.070361, 14.111509, 0), V(29.211127, 14.225256, 0), V(29.396965, 14.342595, 0), V(29.705917, 14.47853, 0), V(29.953117, 14.521695, 0), V(30.116521, 14.521653, 0)], [4, 1, 1, 1, 1, 1, 1, 1, 1, 1, 1, 1, 1, 1, 1, 1, 1, 1, 4], [0, 0.141583694, 0.20592646, 0.265301357, 0.320597233, 0.371816503, 0.41878977, 0.461698729, 0.502133582, 0.540804315, 0.578180525, 0.614296865, 0.649678243, 0.68429946, 0.718358953, 0.752080865, 0.817652439, 0.879722076, 1], False, 3, [1, 1, 1, 1, 1, 1, 1, 1, 1, 1, 1, 1, 1, 1, 1, 1, 1, 1, 1, 1, 1], False), False)  # 36
sketch3.addConstraint(Sketcher.Constraint("Block", 19))
sketch3.addConstraint(Sketcher.Constraint("Block", 20))
sketch3.addConstraint(Sketcher.Constraint("Block", 21))
sketch3.addConstraint(Sketcher.Constraint("Block", 22))
sketch3.addConstraint(Sketcher.Constraint("Block", 23))
sketch3.addConstraint(Sketcher.Constraint("Block", 24))
sketch3.addConstraint(Sketcher.Constraint("Block", 25))
sketch3.addConstraint(Sketcher.Constraint("Block", 26))
sketch3.addConstraint(Sketcher.Constraint("Block", 27))
sketch3.addConstraint(Sketcher.Constraint("Block", 28))
sketch3.addConstraint(Sketcher.Constraint("Block", 29))
sketch3.addConstraint(Sketcher.Constraint("Block", 30))
sketch3.addConstraint(Sketcher.Constraint("Block", 31))
sketch3.addConstraint(Sketcher.Constraint("Block", 32))
sketch3.addConstraint(Sketcher.Constraint("Block", 33))
sketch3.addConstraint(Sketcher.Constraint("Block", 34))
sketch3.addConstraint(Sketcher.Constraint("Block", 35))
sketch3.addConstraint(Sketcher.Constraint("Block", 36))
sketch3.addConstraint(Sketcher.Constraint("Horizontal", 0))
sketch3.addConstraint(Sketcher.Constraint("Horizontal", 2))
sketch3.addConstraint(Sketcher.Constraint("Vertical", 3))
sketch3.addConstraint(Sketcher.Constraint("Horizontal", 4))
sketch3.addConstraint(Sketcher.Constraint("Vertical", 5))
sketch3.addConstraint(Sketcher.Constraint("Horizontal", 6))
sketch3.addConstraint(Sketcher.Constraint("Horizontal", 8))
sketch3.addConstraint(Sketcher.Constraint("Vertical", 9))
sketch3.addConstraint(Sketcher.Constraint("Horizontal", 10))
sketch3.addConstraint(Sketcher.Constraint("Vertical", 11))
sketch3.addConstraint(Sketcher.Constraint("Horizontal", 12))
sketch3.addConstraint(Sketcher.Constraint("Vertical", 13))
sketch3.addConstraint(Sketcher.Constraint("Horizontal", 14))
sketch3.addConstraint(Sketcher.Constraint("Vertical", 15))
sketch3.addConstraint(Sketcher.Constraint("Horizontal", 16))
sketch3.addConstraint(Sketcher.Constraint("Vertical", 18))
sketch3.addConstraint(Sketcher.Constraint("Horizontal", 4, 2, 9, 2))
sketch3.addConstraint(Sketcher.Constraint("Horizontal", 8, 2, 11, 2))
sketch3.addConstraint(Sketcher.Constraint("Horizontal", 14, 2, 16, 2))
sketch3.addConstraint(Sketcher.Constraint("Vertical", 11, 2, 14, 2))
sketch3.addConstraint(Sketcher.Constraint("Vertical", 9, 2, 17, 2))
sketch3.addConstraint(Sketcher.Constraint("Equal", 4, 10))
sketch3.addConstraint(Sketcher.Constraint("DistanceY", 18, 1, 18, 2, Q("3.217401 mm")))
sketch3.addConstraint(Sketcher.Constraint("DistanceX", 0, 2, 0, 1, Q("1.36977 mm")))
sketch3.addConstraint(Sketcher.Constraint("DistanceX", 4, 1, 4, 2, Q("0.66485 mm")))
sketch3.addConstraint(Sketcher.Constraint("DistanceX", 8, 1, 8, 2, Q("3.514209 mm")))
sketch3.addConstraint(Sketcher.Constraint("DistanceY", 13, 2, 13, 1, Q("0.759829 mm")))
sketch3.addConstraint(Sketcher.Constraint("Distance", 1, Q("0.87545 mm")))
sketch3.addConstraint(Sketcher.Constraint("DistanceX", 2, 1, 2, 2, Q("1.139744 mm")))
sketch3.addConstraint(Sketcher.Constraint("DistanceX", 6, 2, 6, 1, Q("0.135048 mm")))
sketch3.addConstraint(Sketcher.Constraint("DistanceX", 12, 1, 12, 2, Q("0.854808 mm")))
sketch3.addConstraint(Sketcher.Constraint("DistanceX", 16, 2, 16, 1, Q("2.208253 mm")))
sketch3.addConstraint(Sketcher.Constraint("DistanceY", 3, 1, 3, 2, Q("6.648504 mm")))
sketch3.addConstraint(Sketcher.Constraint("DistanceY", 9, 1, 9, 2, Q("1.709615 mm")))
sketch3.addConstraint(Sketcher.Constraint("DistanceY", 15, 2, 15, 1, Q("5.128846 mm")))
sketch3.addConstraint(Sketcher.Constraint("DistanceX", -1, 1, 0, 2, Q("12.09581 mm")))
sketch3.addConstraint(Sketcher.Constraint("DistanceY", -1, 1, 0, 2, Q("7.683191 mm")))
sketch3.addConstraint(Sketcher.Constraint("DistanceX", -1, 1, 7, 2, Q("16.21996 mm")))
pocket2 = doc.addObject("PartDesign::Pocket", "Pocket001")
body.addObject(pocket2)
pocket2.Profile = sketch3
pocket2.Length = 0.1
pocket2.Reversed = True

doc.recompute()
